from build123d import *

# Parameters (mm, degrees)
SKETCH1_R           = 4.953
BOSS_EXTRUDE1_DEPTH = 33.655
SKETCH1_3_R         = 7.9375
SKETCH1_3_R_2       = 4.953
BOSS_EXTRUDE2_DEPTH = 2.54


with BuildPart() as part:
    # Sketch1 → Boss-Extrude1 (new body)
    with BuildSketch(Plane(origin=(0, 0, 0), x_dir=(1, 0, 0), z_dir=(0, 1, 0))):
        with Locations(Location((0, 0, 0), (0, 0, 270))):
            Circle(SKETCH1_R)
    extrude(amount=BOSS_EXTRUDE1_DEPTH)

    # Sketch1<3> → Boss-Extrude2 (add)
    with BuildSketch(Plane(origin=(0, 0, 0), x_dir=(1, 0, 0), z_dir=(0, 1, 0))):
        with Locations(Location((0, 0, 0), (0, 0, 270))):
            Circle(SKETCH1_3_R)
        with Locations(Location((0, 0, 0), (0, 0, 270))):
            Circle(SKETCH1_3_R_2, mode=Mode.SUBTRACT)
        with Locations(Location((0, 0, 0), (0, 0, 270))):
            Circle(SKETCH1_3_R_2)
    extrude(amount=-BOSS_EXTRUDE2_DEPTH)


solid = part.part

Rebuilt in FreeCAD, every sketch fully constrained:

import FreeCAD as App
import Part
import Sketcher
Q = App.Units.Quantity

doc = App.newDocument("Part")
body = doc.addObject("PartDesign::Body", "Body")

sketch1 = body.newObject("Sketcher::SketchObject", "Sketch")
sketch1.AttachmentSupport = (doc.getObject("XZ_Plane"), [""])
sketch1.MapMode = "FlatFace"
sketch1.addGeometry(Part.Circle(App.Vector(0, 0, 0), App.Vector(0, 0, 1), 5), False)
sketch1.addConstraint(Sketcher.Constraint("Coincident", 0, 3, -1, 1))
sketch1.addConstraint(Sketcher.Constraint("Diameter", 0, Q("0.39 in")))
pad1 = body.newObject("PartDesign::Pad", "Pad")
pad1.Profile = sketch1
pad1.Length = Q("1.325 in")
pad1.Reversed = True

sketch2 = body.newObject("Sketcher::SketchObject", "Sketch001")
sketch2.AttachmentSupport = (doc.getObject("XZ_Plane"), [""])
sketch2.MapMode = "FlatFace"
sketch2.addGeometry(Part.Circle(App.Vector(0, 0, 0), App.Vector(0, 0, 1), 8), False)
sketch2.addConstraint(Sketcher.Constraint("Coincident", 0, 3, -1, 1))
sketch2.addConstraint(Sketcher.Constraint("Diameter", 0, Q("0.625 in")))
pad2 = body.newObject("PartDesign::Pad", "Pad001")
pad2.Profile = sketch2
pad2.Length = Q("0.1 in")

doc.recompute()
